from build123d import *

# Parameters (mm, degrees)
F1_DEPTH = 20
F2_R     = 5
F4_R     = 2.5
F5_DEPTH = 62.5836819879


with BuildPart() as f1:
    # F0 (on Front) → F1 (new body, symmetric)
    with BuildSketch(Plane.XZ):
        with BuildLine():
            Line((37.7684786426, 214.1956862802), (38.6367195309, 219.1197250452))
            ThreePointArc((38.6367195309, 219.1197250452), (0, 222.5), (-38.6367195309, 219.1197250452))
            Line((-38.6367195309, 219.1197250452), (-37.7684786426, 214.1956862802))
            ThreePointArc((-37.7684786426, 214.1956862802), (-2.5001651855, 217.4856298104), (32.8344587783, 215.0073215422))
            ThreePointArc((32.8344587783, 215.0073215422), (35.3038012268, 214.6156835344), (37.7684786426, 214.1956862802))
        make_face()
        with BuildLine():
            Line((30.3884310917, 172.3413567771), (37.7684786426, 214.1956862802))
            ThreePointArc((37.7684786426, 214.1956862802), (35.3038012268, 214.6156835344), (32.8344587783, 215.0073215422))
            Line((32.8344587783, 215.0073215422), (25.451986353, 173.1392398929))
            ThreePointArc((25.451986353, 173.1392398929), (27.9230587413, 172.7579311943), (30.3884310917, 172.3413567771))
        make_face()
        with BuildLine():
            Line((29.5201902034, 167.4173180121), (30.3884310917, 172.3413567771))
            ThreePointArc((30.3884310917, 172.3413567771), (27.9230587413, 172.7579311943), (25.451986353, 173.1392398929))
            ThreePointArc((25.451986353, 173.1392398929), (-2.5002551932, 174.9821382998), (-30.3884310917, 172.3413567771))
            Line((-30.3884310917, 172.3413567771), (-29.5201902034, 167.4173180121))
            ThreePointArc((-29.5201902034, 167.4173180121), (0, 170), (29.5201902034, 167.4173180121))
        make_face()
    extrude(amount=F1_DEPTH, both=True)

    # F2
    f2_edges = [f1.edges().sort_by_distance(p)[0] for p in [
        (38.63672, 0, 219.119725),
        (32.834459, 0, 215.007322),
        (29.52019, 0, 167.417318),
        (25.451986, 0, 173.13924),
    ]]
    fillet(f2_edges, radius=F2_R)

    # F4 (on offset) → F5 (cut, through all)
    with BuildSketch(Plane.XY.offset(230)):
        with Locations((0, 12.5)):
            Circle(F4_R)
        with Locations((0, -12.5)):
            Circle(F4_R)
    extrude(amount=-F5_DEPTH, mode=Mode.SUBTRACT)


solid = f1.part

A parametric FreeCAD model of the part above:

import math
import FreeCAD as App
import Part
import Sketcher

V = App.Vector
Q = App.Units.Quantity


def edges_at(feature, points):
    """Names of the edges that pass closest to the given points."""
    edges = feature.Shape.Edges
    near = lambda p: min(range(len(edges)), key=lambda i: edges[i].distToShape(Part.Vertex(*p))[0])
    return sorted({f"Edge{near(p) + 1}" for p in points})

doc = App.newDocument("Part")
body = doc.addObject("PartDesign::Body", "Body")

sketch1 = doc.addObject("Sketcher::SketchObject", "Sketch")
body.addObject(sketch1)
sketch1.AttachmentSupport = (doc.XZ_Plane, [""])
sketch1.MapMode = "FlatFace"
sketch1.addGeometry([
    Part.LineSegment(V(37.8, 214.2, 0), V(38.6, 219.1, 0)),
    Part.ArcOfCircle(Part.Circle(V(0, 0, 0), V(0, 0, 1), 222.5), math.radians(80), math.radians(100)),
    Part.LineSegment(V(-38.6, 219.1, 0), V(-37.8, 214.2, 0)),
    Part.ArcOfCircle(Part.Circle(V(0, 0, 0), V(0, 0, 1), 217.5), math.radians(81.32), math.radians(100)),
    Part.LineSegment(V(32.8, 215, 0), V(25.5, 173.1, 0)),
    Part.ArcOfCircle(Part.Circle(V(0, 0, 0), V(0, 0, 1), 175), math.radians(81.64), math.radians(100)),
    Part.LineSegment(V(-30.4, 172.3, 0), V(-29.5, 167.4, 0)),
    Part.ArcOfCircle(Part.Circle(V(0, 0, 0), V(0, 0, 1), 170), math.radians(80), math.radians(100)),
    Part.LineSegment(V(29.5, 167.4, 0), V(30.4, 172.3, 0)),
    Part.LineSegment(V(30.4, 172.3, 0), V(37.8, 214.2, 0)),
], False)
sketch1.addConstraint([
    Sketcher.Constraint("Coincident", 0, 2, 1, 1),
    Sketcher.Constraint("Coincident", 1, 2, 2, 1),
    Sketcher.Constraint("Coincident", 2, 2, 3, 2),
    Sketcher.Constraint("Coincident", 3, 1, 4, 1),
    Sketcher.Constraint("Coincident", 4, 2, 5, 1),
    Sketcher.Constraint("Coincident", 5, 2, 6, 1),
    Sketcher.Constraint("Coincident", 6, 2, 7, 2),
    Sketcher.Constraint("Coincident", 7, 1, 8, 1),
    Sketcher.Constraint("Coincident", 8, 2, 9, 1),
    Sketcher.Constraint("Coincident", 9, 2, 0, 1),
    Sketcher.Constraint("Coincident", 1, 3, -1, 1),
    Sketcher.Constraint("Coincident", 3, 3, -1, 1),
    Sketcher.Constraint("Coincident", 5, 3, -1, 1),
    Sketcher.Constraint("Coincident", 7, 3, -1, 1),
    Sketcher.Constraint("Symmetric", 5, 2, 8, 2, -2),
    Sketcher.Constraint("Symmetric", 2, 2, 9, 2, -2),
    Sketcher.Constraint("Parallel", 0, 4),
    Sketcher.Constraint("Parallel", 2, 6),
    Sketcher.Constraint("Parallel", 4, 8),
    Sketcher.Constraint("Parallel", 8, 9),
    Sketcher.Constraint("Horizontal", 0, 2, 1, 2),
    Sketcher.Constraint("Equal", 2, 6),
    Sketcher.Constraint("Radius", 5, Q("175 mm")),
    Sketcher.Constraint("Radius", 7, Q("170 mm")),
    Sketcher.Constraint("Radius", 1, Q("222.5 mm")),
    Sketcher.Constraint("Angle", 0, Q("80 deg")),
    Sketcher.Constraint("DistanceX", 2, 2, 0, 2, Q("76.405198 mm")),
    Sketcher.Constraint("DistanceX", -1, 1, 3, 1, Q("32.834459 mm")),
])
pad1 = doc.addObject("PartDesign::Pad", "Pad")
body.addObject(pad1)
pad1.Profile = sketch1
pad1.Length = 40
pad1.Midplane = True
doc.recompute()

fillet = doc.addObject("PartDesign::Fillet", "Fillet")
body.addObject(fillet)
fillet.Base = (pad1, edges_at(pad1, [
    (38.637, 0, 219.12),
    (32.834, 0, 215.007),
    (29.52, 0, 167.417),
    (25.452, 0, 173.139),
]))
fillet.Radius = 5

sketch2 = doc.addObject("Sketcher::SketchObject", "Sketch001")
body.addObject(sketch2)
sketch2.AttachmentSupport = (doc.XY_Plane, [""])
sketch2.MapMode = "FlatFace"
sketch2.AttachmentOffset = App.Placement(V(0, 0, 230), App.Rotation())
sketch2.addGeometry([
    Part.Circle(V(0, 12.5, 0), V(0, 0, 1), 2.5),
    Part.Circle(V(0, -12.5, 0), V(0, 0, 1), 2.5),
], False)
sketch2.addConstraint([
    Sketcher.Constraint("Equal", 0, 1),
    Sketcher.Constraint("Symmetric", 0, 3, 1, 3, -1, 1),
    Sketcher.Constraint("PointOnObject", 0, 3, -2),
    Sketcher.Constraint("Diameter", 0, Q("5 mm")),
    Sketcher.Constraint("DistanceY", 1, 3, 0, 3, Q("25 mm")),
])
pocket1 = doc.addObject("PartDesign::Pocket", "Pocket")
body.addObject(pocket1)
pocket1.Profile = sketch2
pocket1.Type = "ThroughAll"

doc.recompute()
